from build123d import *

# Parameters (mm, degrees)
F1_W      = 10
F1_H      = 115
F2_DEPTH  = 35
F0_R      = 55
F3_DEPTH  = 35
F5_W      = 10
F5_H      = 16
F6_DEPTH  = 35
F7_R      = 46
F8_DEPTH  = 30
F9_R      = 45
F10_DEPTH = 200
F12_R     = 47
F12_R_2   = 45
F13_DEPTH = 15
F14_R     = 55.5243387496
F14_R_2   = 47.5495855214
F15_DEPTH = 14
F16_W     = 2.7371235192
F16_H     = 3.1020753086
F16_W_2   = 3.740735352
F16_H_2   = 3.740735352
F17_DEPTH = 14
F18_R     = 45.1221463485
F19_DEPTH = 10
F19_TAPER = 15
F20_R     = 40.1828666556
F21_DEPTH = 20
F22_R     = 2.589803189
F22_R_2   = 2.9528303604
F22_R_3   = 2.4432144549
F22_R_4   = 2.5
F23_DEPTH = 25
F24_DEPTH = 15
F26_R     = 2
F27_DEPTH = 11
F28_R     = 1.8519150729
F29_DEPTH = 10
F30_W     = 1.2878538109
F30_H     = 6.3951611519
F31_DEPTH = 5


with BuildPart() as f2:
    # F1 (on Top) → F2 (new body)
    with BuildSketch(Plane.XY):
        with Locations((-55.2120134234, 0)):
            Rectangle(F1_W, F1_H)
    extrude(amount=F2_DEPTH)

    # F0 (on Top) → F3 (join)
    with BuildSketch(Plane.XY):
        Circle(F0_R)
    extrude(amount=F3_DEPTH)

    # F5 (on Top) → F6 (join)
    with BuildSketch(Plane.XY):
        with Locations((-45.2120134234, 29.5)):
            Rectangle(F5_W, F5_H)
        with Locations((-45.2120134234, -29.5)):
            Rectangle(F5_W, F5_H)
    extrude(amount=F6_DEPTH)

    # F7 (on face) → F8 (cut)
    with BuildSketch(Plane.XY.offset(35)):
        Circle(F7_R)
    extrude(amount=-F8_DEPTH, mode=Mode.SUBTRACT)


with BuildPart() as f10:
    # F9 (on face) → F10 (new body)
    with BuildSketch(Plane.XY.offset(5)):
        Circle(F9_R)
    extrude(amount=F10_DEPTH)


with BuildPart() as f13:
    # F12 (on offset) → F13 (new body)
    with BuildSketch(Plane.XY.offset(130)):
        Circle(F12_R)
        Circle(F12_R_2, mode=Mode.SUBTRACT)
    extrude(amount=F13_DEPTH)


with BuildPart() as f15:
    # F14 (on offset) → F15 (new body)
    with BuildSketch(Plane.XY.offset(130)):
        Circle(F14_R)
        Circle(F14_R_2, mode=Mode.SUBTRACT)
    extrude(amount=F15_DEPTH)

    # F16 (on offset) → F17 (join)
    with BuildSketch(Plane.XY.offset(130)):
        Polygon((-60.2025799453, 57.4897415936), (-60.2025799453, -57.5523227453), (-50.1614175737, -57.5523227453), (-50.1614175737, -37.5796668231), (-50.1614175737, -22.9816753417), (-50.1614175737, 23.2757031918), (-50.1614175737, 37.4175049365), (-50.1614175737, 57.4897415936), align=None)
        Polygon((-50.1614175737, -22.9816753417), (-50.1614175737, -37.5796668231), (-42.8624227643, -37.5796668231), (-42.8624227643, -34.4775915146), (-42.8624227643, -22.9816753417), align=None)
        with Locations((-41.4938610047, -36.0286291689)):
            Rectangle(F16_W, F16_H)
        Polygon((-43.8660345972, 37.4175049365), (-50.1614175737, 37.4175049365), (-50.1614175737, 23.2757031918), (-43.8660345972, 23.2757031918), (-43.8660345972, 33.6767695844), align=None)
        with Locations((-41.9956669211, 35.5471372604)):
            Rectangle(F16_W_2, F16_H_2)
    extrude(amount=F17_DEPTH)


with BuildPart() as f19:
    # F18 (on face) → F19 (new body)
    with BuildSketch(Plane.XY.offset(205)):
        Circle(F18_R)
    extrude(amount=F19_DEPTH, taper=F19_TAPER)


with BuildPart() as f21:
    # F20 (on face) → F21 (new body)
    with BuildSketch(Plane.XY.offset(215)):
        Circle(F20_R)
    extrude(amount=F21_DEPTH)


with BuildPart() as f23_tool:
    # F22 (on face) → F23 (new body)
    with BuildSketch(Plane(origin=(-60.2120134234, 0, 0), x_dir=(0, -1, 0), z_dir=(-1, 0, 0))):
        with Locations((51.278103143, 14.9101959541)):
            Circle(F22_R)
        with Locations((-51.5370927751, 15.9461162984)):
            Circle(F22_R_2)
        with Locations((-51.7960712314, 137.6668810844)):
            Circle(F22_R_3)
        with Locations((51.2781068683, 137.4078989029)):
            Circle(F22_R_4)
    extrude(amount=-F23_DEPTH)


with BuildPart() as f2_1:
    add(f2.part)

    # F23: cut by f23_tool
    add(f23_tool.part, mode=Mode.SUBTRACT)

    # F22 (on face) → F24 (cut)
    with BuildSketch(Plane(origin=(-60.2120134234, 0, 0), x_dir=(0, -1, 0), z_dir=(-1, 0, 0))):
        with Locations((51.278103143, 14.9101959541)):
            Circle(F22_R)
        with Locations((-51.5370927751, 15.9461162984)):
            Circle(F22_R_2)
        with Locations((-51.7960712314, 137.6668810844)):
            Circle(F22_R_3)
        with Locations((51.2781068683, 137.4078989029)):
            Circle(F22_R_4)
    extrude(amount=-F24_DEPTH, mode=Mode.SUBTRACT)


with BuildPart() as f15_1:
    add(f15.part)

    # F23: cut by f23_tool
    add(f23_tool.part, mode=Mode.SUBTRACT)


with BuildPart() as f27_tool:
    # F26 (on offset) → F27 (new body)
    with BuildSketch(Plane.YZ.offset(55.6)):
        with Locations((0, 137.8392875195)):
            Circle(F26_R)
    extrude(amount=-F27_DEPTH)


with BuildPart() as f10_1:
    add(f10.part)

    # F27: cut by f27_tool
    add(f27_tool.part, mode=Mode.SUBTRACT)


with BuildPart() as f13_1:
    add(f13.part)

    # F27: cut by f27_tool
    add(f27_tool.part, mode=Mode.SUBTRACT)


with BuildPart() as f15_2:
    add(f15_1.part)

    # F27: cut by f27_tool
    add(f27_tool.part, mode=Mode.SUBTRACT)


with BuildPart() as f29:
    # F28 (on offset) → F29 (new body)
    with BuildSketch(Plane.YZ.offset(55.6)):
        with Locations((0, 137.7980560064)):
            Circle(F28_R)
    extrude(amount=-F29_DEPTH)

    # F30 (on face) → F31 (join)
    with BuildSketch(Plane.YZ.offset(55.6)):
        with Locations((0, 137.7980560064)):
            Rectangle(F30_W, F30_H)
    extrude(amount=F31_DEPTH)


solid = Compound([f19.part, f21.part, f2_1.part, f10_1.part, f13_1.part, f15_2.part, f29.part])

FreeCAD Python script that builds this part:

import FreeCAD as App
import Part
import Sketcher
from FreeCAD import Vector
Q = App.Units.Quantity


def add_polygon(sketch, points):
    """Adds a closed chain of lines whose ends are joined by coincident constraints."""
    first, n = sketch.GeometryCount, len(points)
    for a, b in zip(points, points[1:] + points[:1]):
        sketch.addGeometry(Part.LineSegment(App.Vector(*a, 0), App.Vector(*b, 0)), False)
    for i in range(n):
        sketch.addConstraint(Sketcher.Constraint("Coincident", first + i, 2, first + (i + 1) % n, 1))

doc = App.newDocument("Part")
body = doc.addObject("PartDesign::Body", "Body")

# Sketch on XY plane
sketch1 = doc.addObject("Sketcher::SketchObject", "Sketch")
body.addObject(sketch1)
sketch1.AttachmentSupport = (doc.XY_Plane, [""])
sketch1.MapMode = "FlatFace"
add_polygon(sketch1, [(-60, 58), (-60, -58), (-50, -58), (-50, 58)])  # lines 0-3
sketch1.addConstraint(Sketcher.Constraint("Vertical", 0))
sketch1.addConstraint(Sketcher.Constraint("Horizontal", 1))
sketch1.addConstraint(Sketcher.Constraint("Vertical", 2))
sketch1.addConstraint(Sketcher.Constraint("Horizontal", 3))
sketch1.addConstraint(Sketcher.Constraint("DistanceX", 1, 1, 1, 2, Q("10 mm")))
sketch1.addConstraint(Sketcher.Constraint("DistanceY", 0, 2, 0, 1, Q("115 mm")))
sketch1.addConstraint(Sketcher.Constraint("DistanceY", 0, 2, -1, 1, Q("57.5 mm")))
sketch1.addConstraint(Sketcher.Constraint("DistanceX", 0, 2, -1, 1, Q("60.212013 mm")))
pad1 = doc.addObject("PartDesign::Pad", "Pad")
body.addObject(pad1)
pad1.Profile = sketch1
pad1.Length = 35

# Sketch on XY plane
sketch2 = doc.addObject("Sketcher::SketchObject", "Sketch001")
body.addObject(sketch2)
sketch2.AttachmentSupport = (doc.XY_Plane, [""])
sketch2.MapMode = "FlatFace"
sketch2.addGeometry(Part.Circle(Vector(0, 0, 0), Vector(0, 0, 1), 55), False)
sketch2.addConstraint(Sketcher.Constraint("Coincident", 0, 3, -1, 1))
sketch2.addConstraint(Sketcher.Constraint("Diameter", 0, Q("110 mm")))
pad2 = doc.addObject("PartDesign::Pad", "Pad001")
body.addObject(pad2)
pad2.Profile = sketch2
pad2.Length = 35

# Sketch on XY plane
sketch3 = doc.addObject("Sketcher::SketchObject", "Sketch002")
body.addObject(sketch3)
sketch3.AttachmentSupport = (doc.XY_Plane, [""])
sketch3.MapMode = "FlatFace"
add_polygon(sketch3, [(-50, 38), (-50, 22), (-40, 22), (-40, 38)])  # lines 0-3
add_polygon(sketch3, [(-50, -22), (-50, -38), (-40, -38), (-40, -22)])  # lines 4-7
sketch3.addConstraint(Sketcher.Constraint("Vertical", 0))
sketch3.addConstraint(Sketcher.Constraint("Horizontal", 1))
sketch3.addConstraint(Sketcher.Constraint("Vertical", 2))
sketch3.addConstraint(Sketcher.Constraint("Horizontal", 3))
sketch3.addConstraint(Sketcher.Constraint("Vertical", 4))
sketch3.addConstraint(Sketcher.Constraint("Horizontal", 5))
sketch3.addConstraint(Sketcher.Constraint("Vertical", 6))
sketch3.addConstraint(Sketcher.Constraint("Horizontal", 7))
sketch3.addConstraint(Sketcher.Constraint("Symmetric", 3, 2, 4, 2, -1))
sketch3.addConstraint(Sketcher.Constraint("Symmetric", 1, 2, 6, 2, -1))
sketch3.addConstraint(Sketcher.Constraint("DistanceX", 1, 1, 1, 2, Q("10 mm")))
sketch3.addConstraint(Sketcher.Constraint("DistanceY", 0, 2, 0, 1, Q("16 mm")))
sketch3.addConstraint(Sketcher.Constraint("DistanceY", 4, 2, 0, 2, Q("59 mm")))
sketch3.addConstraint(Sketcher.Constraint("DistanceX", 0, 2, -1, 1, Q("50.212013 mm")))
pad3 = doc.addObject("PartDesign::Pad", "Pad002")
body.addObject(pad3)
pad3.Profile = sketch3
pad3.Length = 35

# Sketch on XY plane
sketch4 = doc.addObject("Sketcher::SketchObject", "Sketch003")
body.addObject(sketch4)
sketch4.AttachmentSupport = (doc.XY_Plane, [""])
sketch4.MapMode = "FlatFace"
sketch4.AttachmentOffset = App.Placement(Vector(0, 0, 35), App.Rotation())
sketch4.addGeometry(Part.Circle(Vector(0, 0, 0), Vector(0, 0, 1), 46), False)
sketch4.addConstraint(Sketcher.Constraint("Coincident", 0, 3, -1, 1))
sketch4.addConstraint(Sketcher.Constraint("Diameter", 0, Q("92 mm")))
pocket1 = doc.addObject("PartDesign::Pocket", "Pocket")
body.addObject(pocket1)
pocket1.Profile = sketch4
pocket1.Length = 30
body2 = doc.addObject("PartDesign::Body", "Body001")

# Sketch on XY plane
sketch5 = doc.addObject("Sketcher::SketchObject", "Sketch004")
body2.addObject(sketch5)
sketch5.AttachmentSupport = (doc.getObject("XY_Plane001"), [""])
sketch5.MapMode = "FlatFace"
sketch5.AttachmentOffset = App.Placement(Vector(0, 0, 5), App.Rotation())
sketch5.addGeometry(Part.Circle(Vector(0, 0, 0), Vector(0, 0, 1), 45), False)
sketch5.addConstraint(Sketcher.Constraint("Coincident", 0, 3, -1, 1))
sketch5.addConstraint(Sketcher.Constraint("Diameter", 0, Q("90 mm")))
pad4 = doc.addObject("PartDesign::Pad", "Pad003")
body2.addObject(pad4)
pad4.Profile = sketch5
pad4.Length = 200
body3 = doc.addObject("PartDesign::Body", "Body002")

# Sketch on XY plane
sketch6 = doc.addObject("Sketcher::SketchObject", "Sketch005")
body3.addObject(sketch6)
sketch6.AttachmentSupport = (doc.getObject("XY_Plane002"), [""])
sketch6.MapMode = "FlatFace"
sketch6.AttachmentOffset = App.Placement(Vector(0, 0, 130), App.Rotation())
sketch6.addGeometry(Part.Circle(Vector(0, 0, 0), Vector(0, 0, 1), 47), False)
sketch6.addGeometry(Part.Circle(Vector(0, 0, 0), Vector(0, 0, 1), 45), False)
sketch6.addConstraint(Sketcher.Constraint("Coincident", 0, 3, -1, 1))
sketch6.addConstraint(Sketcher.Constraint("Coincident", 1, 3, -1, 1))
sketch6.addConstraint(Sketcher.Constraint("Diameter", 0, Q("94 mm")))
sketch6.addConstraint(Sketcher.Constraint("Diameter", 1, Q("90 mm")))
pad5 = doc.addObject("PartDesign::Pad", "Pad004")
body3.addObject(pad5)
pad5.Profile = sketch6
pad5.Length = 15
body4 = doc.addObject("PartDesign::Body", "Body003")

# Sketch on XY plane
sketch7 = doc.addObject("Sketcher::SketchObject", "Sketch006")
body4.addObject(sketch7)
sketch7.AttachmentSupport = (doc.getObject("XY_Plane003"), [""])
sketch7.MapMode = "FlatFace"
sketch7.AttachmentOffset = App.Placement(Vector(0, 0, 130), App.Rotation())
sketch7.addGeometry(Part.Circle(Vector(0, 0, 0), Vector(0, 0, 1), 56), False)
sketch7.addGeometry(Part.Circle(Vector(0, 0, 0), Vector(0, 0, 1), 48), False)
sketch7.addConstraint(Sketcher.Constraint("Coincident", 0, 3, -1, 1))
sketch7.addConstraint(Sketcher.Constraint("Coincident", 1, 3, -1, 1))
sketch7.addConstraint(Sketcher.Constraint("Diameter", 1, Q("95.099171 mm")))
sketch7.addConstraint(Sketcher.Constraint("Diameter", 0, Q("111.048677 mm")))
pad6 = doc.addObject("PartDesign::Pad", "Pad005")
body4.addObject(pad6)
pad6.Profile = sketch7
pad6.Length = 14

# Sketch on XY plane
sketch8 = doc.addObject("Sketcher::SketchObject", "Sketch007")
body4.addObject(sketch8)
sketch8.AttachmentSupport = (doc.getObject("XY_Plane003"), [""])
sketch8.MapMode = "FlatFace"
sketch8.AttachmentOffset = App.Placement(Vector(0, 0, 130), App.Rotation())
add_polygon(sketch8, [(-60.2, 57.5), (-60.2, -57.6), (-50.2, -57.6), (-50.2, -37.6), (-42.9, -37.6), (-40.1, -37.6), (-40.1, -34.5), (-42.9, -34.5), (-42.9, -23), (-50.2, -23), (-50.2, 23.3), (-43.9, 23.3), (-43.9, 33.7), (-40.1, 33.7), (-40.1, 37.4), (-43.9, 37.4), (-50.2, 37.4), (-50.2, 57.5)])  # lines 0-17
sketch8.addConstraint(Sketcher.Constraint("Vertical", 0))
sketch8.addConstraint(Sketcher.Constraint("Horizontal", 1))
sketch8.addConstraint(Sketcher.Constraint("Vertical", 2))
sketch8.addConstraint(Sketcher.Constraint("Horizontal", 3))
sketch8.addConstraint(Sketcher.Constraint("Horizontal", 4))
sketch8.addConstraint(Sketcher.Constraint("Vertical", 5))
sketch8.addConstraint(Sketcher.Constraint("Horizontal", 6))
sketch8.addConstraint(Sketcher.Constraint("Vertical", 7))
sketch8.addConstraint(Sketcher.Constraint("Horizontal", 8))
sketch8.addConstraint(Sketcher.Constraint("Vertical", 9))
sketch8.addConstraint(Sketcher.Constraint("Horizontal", 10))
sketch8.addConstraint(Sketcher.Constraint("Vertical", 11))
sketch8.addConstraint(Sketcher.Constraint("Horizontal", 12))
sketch8.addConstraint(Sketcher.Constraint("Vertical", 13))
sketch8.addConstraint(Sketcher.Constraint("Horizontal", 14))
sketch8.addConstraint(Sketcher.Constraint("Horizontal", 15))
sketch8.addConstraint(Sketcher.Constraint("Vertical", 16))
sketch8.addConstraint(Sketcher.Constraint("Horizontal", 17))
sketch8.addConstraint(Sketcher.Constraint("Vertical", 3, 2, 6, 2))
sketch8.addConstraint(Sketcher.Constraint("Vertical", 2, 2, 8, 2))
sketch8.addConstraint(Sketcher.Constraint("Vertical", 5, 2, 12, 2))
sketch8.addConstraint(Sketcher.Constraint("Vertical", 11, 2, 14, 2))
sketch8.addConstraint(Sketcher.Constraint("Vertical", 9, 2, 15, 2))
sketch8.addConstraint(Sketcher.Constraint("Equal", 14, 13))
sketch8.addConstraint(Sketcher.Constraint("DistanceY", 9, 1, 9, 2, Q("46.257379 mm")))
sketch8.addConstraint(Sketcher.Constraint("DistanceX", 4, 2, -1, 1, Q("40.125299 mm")))
sketch8.addConstraint(Sketcher.Constraint("DistanceY", 10, 2, 13, 2, Q("14.141802 mm")))
sketch8.addConstraint(Sketcher.Constraint("DistanceX", 1, 1, 1, 2, Q("10.041162 mm")))
sketch8.addConstraint(Sketcher.Constraint("DistanceX", 3, 1, 3, 2, Q("7.298995 mm")))
sketch8.addConstraint(Sketcher.Constraint("DistanceX", 4, 1, 4, 2, Q("2.737124 mm")))
sketch8.addConstraint(Sketcher.Constraint("DistanceX", 10, 1, 10, 2, Q("6.295383 mm")))
sketch8.addConstraint(Sketcher.Constraint("DistanceY", 0, 2, 0, 1, Q("115.042064 mm")))
sketch8.addConstraint(Sketcher.Constraint("DistanceY", 2, 1, 2, 2, Q("19.972656 mm")))
sketch8.addConstraint(Sketcher.Constraint("DistanceY", 5, 1, 5, 2, Q("3.102075 mm")))
sketch8.addConstraint(Sketcher.Constraint("DistanceY", 7, 1, 7, 2, Q("11.495916 mm")))
sketch8.addConstraint(Sketcher.Constraint("DistanceY", 5, 2, -1, 1, Q("34.477592 mm")))
pad7 = doc.addObject("PartDesign::Pad", "Pad006")
body4.addObject(pad7)
pad7.Profile = sketch8
pad7.Length = 14
body5 = doc.addObject("PartDesign::Body", "Body004")

# Sketch on XY plane
sketch9 = doc.addObject("Sketcher::SketchObject", "Sketch008")
body5.addObject(sketch9)
sketch9.AttachmentSupport = (doc.getObject("XY_Plane004"), [""])
sketch9.MapMode = "FlatFace"
sketch9.AttachmentOffset = App.Placement(Vector(0, 0, 205), App.Rotation())
sketch9.addGeometry(Part.Circle(Vector(0, 0, 0), Vector(0, 0, 1), 45), False)
sketch9.addConstraint(Sketcher.Constraint("Coincident", 0, 3, -1, 1))
sketch9.addConstraint(Sketcher.Constraint("Diameter", 0, Q("90.244293 mm")))
pad8 = doc.addObject("PartDesign::Pad", "Pad007")
body5.addObject(pad8)
pad8.Profile = sketch9
pad8.Length = 10
pad8.TaperAngle = -15
body6 = doc.addObject("PartDesign::Body", "Body005")

# Sketch on XY plane
sketch10 = doc.addObject("Sketcher::SketchObject", "Sketch009")
body6.addObject(sketch10)
sketch10.AttachmentSupport = (doc.getObject("XY_Plane005"), [""])
sketch10.MapMode = "FlatFace"
sketch10.AttachmentOffset = App.Placement(Vector(0, 0, 215), App.Rotation())
sketch10.addGeometry(Part.Circle(Vector(0, 0, 0), Vector(0, 0, 1), 40), False)
sketch10.addConstraint(Sketcher.Constraint("Coincident", 0, 3, -1, 1))
sketch10.addConstraint(Sketcher.Constraint("Diameter", 0, Q("80.365733 mm")))
pad9 = doc.addObject("PartDesign::Pad", "Pad008")
body6.addObject(pad9)
pad9.Profile = sketch10
pad9.Length = 20
body7 = doc.addObject("PartDesign::Body", "Body006")
body7.AllowCompound = True

# Sketch on YZ plane
sketch11 = doc.addObject("Sketcher::SketchObject", "Sketch010")
body7.addObject(sketch11)
sketch11.AttachmentSupport = (doc.getObject("YZ_Plane006"), [""])
sketch11.MapMode = "FlatFace"
sketch11.AttachmentOffset = App.Placement(Vector(0, 0, -60.212013), App.Rotation())
sketch11.addGeometry(Part.Circle(Vector(-51.3, 14.9, 0), Vector(0, 0, 1), 2.6), False)
sketch11.addGeometry(Part.Circle(Vector(51.5, 15.9, 0), Vector(0, 0, 1), 3), False)
sketch11.addGeometry(Part.Circle(Vector(51.8, 137.7, 0), Vector(0, 0, 1), 2.4), False)
sketch11.addGeometry(Part.Circle(Vector(-51.3, 137.4, 0), Vector(0, 0, 1), 2.5), False)
sketch11.addConstraint(Sketcher.Constraint("Diameter", 3, Q("5 mm")))
sketch11.addConstraint(Sketcher.Constraint("Diameter", 1, Q("5.905661 mm")))
sketch11.addConstraint(Sketcher.Constraint("Diameter", 2, Q("4.886429 mm")))
sketch11.addConstraint(Sketcher.Constraint("Diameter", 0, Q("5.179606 mm")))
sketch11.addConstraint(Sketcher.Constraint("DistanceY", -1, 1, 3, 3, Q("137.407899 mm")))
sketch11.addConstraint(Sketcher.Constraint("DistanceX", 3, 3, 1, 3, Q("102.8152 mm")))
sketch11.addConstraint(Sketcher.Constraint("DistanceX", -1, 1, 2, 3, Q("51.796071 mm")))
sketch11.addConstraint(Sketcher.Constraint("DistanceY", -1, 1, 2, 3, Q("137.666881 mm")))
sketch11.addConstraint(Sketcher.Constraint("DistanceY", 0, 3, 1, 3, Q("1.03592 mm")))
sketch11.addConstraint(Sketcher.Constraint("DistanceX", 1, 3, 2, 3, Q("0.258978 mm")))
sketch11.addConstraint(Sketcher.Constraint("DistanceX", 0, 3, -1, 1, Q("51.278103 mm")))
sketch11.addConstraint(Sketcher.Constraint("DistanceY", -1, 1, 0, 3, Q("14.910196 mm")))
pad10 = doc.addObject("PartDesign::Pad", "Pad009")
body7.addObject(pad10)
pad10.Profile = sketch11
pad10.Length = 25
doc.recompute()

body8 = doc.addObject("PartDesign::Body", "Body007")
body8.BaseFeature = body7
boolean = doc.addObject("PartDesign::Boolean", "Boolean")
body.addObject(boolean)
boolean.Type = "Cut"
boolean.addObjects([body8])
doc.recompute()

# Sketch on YZ plane
sketch12 = doc.addObject("Sketcher::SketchObject", "Sketch011")
body.addObject(sketch12)
sketch12.AttachmentSupport = (doc.YZ_Plane, [""])
sketch12.MapMode = "FlatFace"
sketch12.AttachmentOffset = App.Placement(Vector(0, 0, -60.212013), App.Rotation())
sketch12.addGeometry(Part.Circle(Vector(-51.3, 14.9, 0), Vector(0, 0, 1), 2.6), False)
sketch12.addGeometry(Part.Circle(Vector(51.5, 15.9, 0), Vector(0, 0, 1), 3), False)
sketch12.addGeometry(Part.Circle(Vector(51.8, 137.7, 0), Vector(0, 0, 1), 2.4), False)
sketch12.addGeometry(Part.Circle(Vector(-51.3, 137.4, 0), Vector(0, 0, 1), 2.5), False)
sketch12.addConstraint(Sketcher.Constraint("Diameter", 3, Q("5 mm")))
sketch12.addConstraint(Sketcher.Constraint("Diameter", 1, Q("5.905661 mm")))
sketch12.addConstraint(Sketcher.Constraint("Diameter", 2, Q("4.886429 mm")))
sketch12.addConstraint(Sketcher.Constraint("Diameter", 0, Q("5.179606 mm")))
sketch12.addConstraint(Sketcher.Constraint("DistanceY", -1, 1, 3, 3, Q("137.407899 mm")))
sketch12.addConstraint(Sketcher.Constraint("DistanceX", 3, 3, 1, 3, Q("102.8152 mm")))
sketch12.addConstraint(Sketcher.Constraint("DistanceX", -1, 1, 2, 3, Q("51.796071 mm")))
sketch12.addConstraint(Sketcher.Constraint("DistanceY", -1, 1, 2, 3, Q("137.666881 mm")))
sketch12.addConstraint(Sketcher.Constraint("DistanceY", 0, 3, 1, 3, Q("1.03592 mm")))
sketch12.addConstraint(Sketcher.Constraint("DistanceX", 1, 3, 2, 3, Q("0.258978 mm")))
sketch12.addConstraint(Sketcher.Constraint("DistanceX", 0, 3, -1, 1, Q("51.278103 mm")))
sketch12.addConstraint(Sketcher.Constraint("DistanceY", -1, 1, 0, 3, Q("14.910196 mm")))
pocket2 = doc.addObject("PartDesign::Pocket", "Pocket001")
body.addObject(pocket2)
pocket2.Profile = sketch12
pocket2.Length = 15
pocket2.Reversed = True
doc.recompute()

boolean2 = doc.addObject("PartDesign::Boolean", "Boolean001")
body4.addObject(boolean2)
boolean2.Type = "Cut"
boolean2.addObjects([body7])
body9 = doc.addObject("PartDesign::Body", "Body008")

# Sketch on YZ plane
sketch13 = doc.addObject("Sketcher::SketchObject", "Sketch012")
body9.addObject(sketch13)
sketch13.AttachmentSupport = (doc.getObject("YZ_Plane008"), [""])
sketch13.MapMode = "FlatFace"
sketch13.AttachmentOffset = App.Placement(Vector(0, 0, 55.6), App.Rotation())
sketch13.addGeometry(Part.Circle(Vector(0, 137.8, 0), Vector(0, 0, 1), 2), False)
sketch13.addConstraint(Sketcher.Constraint("PointOnObject", 0, 3, -2))
sketch13.addConstraint(Sketcher.Constraint("Diameter", 0, Q("4 mm")))
sketch13.addConstraint(Sketcher.Constraint("DistanceY", -1, 1, 0, 3, Q("137.839288 mm")))
pad11 = doc.addObject("PartDesign::Pad", "Pad010")
body9.addObject(pad11)
pad11.Profile = sketch13
pad11.Length = 11
pad11.Reversed = True
doc.recompute()

body10 = doc.addObject("PartDesign::Body", "Body009")
body10.BaseFeature = body9
boolean3 = doc.addObject("PartDesign::Boolean", "Boolean002")
body2.addObject(boolean3)
boolean3.Type = "Cut"
boolean3.addObjects([body10])
doc.recompute()

body11 = doc.addObject("PartDesign::Body", "Body010")
body11.BaseFeature = body9
boolean4 = doc.addObject("PartDesign::Boolean", "Boolean003")
body3.addObject(boolean4)
boolean4.Type = "Cut"
boolean4.addObjects([body11])
doc.recompute()

boolean5 = doc.addObject("PartDesign::Boolean", "Boolean004")
body4.addObject(boolean5)
boolean5.Type = "Cut"
boolean5.addObjects([body9])
body12 = doc.addObject("PartDesign::Body", "Body011")

# Sketch on YZ plane
sketch14 = doc.addObject("Sketcher::SketchObject", "Sketch013")
body12.addObject(sketch14)
sketch14.AttachmentSupport = (doc.getObject("YZ_Plane011"), [""])
sketch14.MapMode = "FlatFace"
sketch14.AttachmentOffset = App.Placement(Vector(0, 0, 55.6), App.Rotation())
sketch14.addGeometry(Part.Circle(Vector(0, 137.8, 0), Vector(0, 0, 1), 1.9), False)
sketch14.addConstraint(Sketcher.Constraint("PointOnObject", 0, 3, -2))
sketch14.addConstraint(Sketcher.Constraint("Diameter", 0, Q("3.70383 mm")))
sketch14.addConstraint(Sketcher.Constraint("DistanceY", -1, 1, 0, 3, Q("137.798056 mm")))
pad12 = doc.addObject("PartDesign::Pad", "Pad011")
body12.addObject(pad12)
pad12.Profile = sketch14
pad12.Length = 10
pad12.Reversed = True

# Sketch on YZ plane
sketch15 = doc.addObject("Sketcher::SketchObject", "Sketch014")
body12.addObject(sketch15)
sketch15.AttachmentSupport = (doc.getObject("YZ_Plane011"), [""])
sketch15.MapMode = "FlatFace"
sketch15.AttachmentOffset = App.Placement(Vector(0, 0, 55.6), App.Rotation())
add_polygon(sketch15, [(-0.6, 141), (-0.6, 134.6), (0.6, 134.6), (0.6, 141)])  # lines 0-3
sketch15.addConstraint(Sketcher.Constraint("Vertical", 0))
sketch15.addConstraint(Sketcher.Constraint("Horizontal", 1))
sketch15.addConstraint(Sketcher.Constraint("Vertical", 2))
sketch15.addConstraint(Sketcher.Constraint("Horizontal", 3))
sketch15.addConstraint(Sketcher.Constraint("DistanceY", 0, 2, 0, 1, Q("6.395161 mm")))
sketch15.addConstraint(Sketcher.Constraint("DistanceX", 1, 1, 1, 2, Q("1.287854 mm")))
sketch15.addConstraint(Sketcher.Constraint("DistanceX", 0, 2, -1, 1, Q("0.643927 mm")))
sketch15.addConstraint(Sketcher.Constraint("DistanceY", -1, 1, 0, 2, Q("134.600475 mm")))
pad13 = doc.addObject("PartDesign::Pad", "Pad012")
body12.addObject(pad13)
pad13.Profile = sketch15
pad13.Length = 5

doc.recompute()
